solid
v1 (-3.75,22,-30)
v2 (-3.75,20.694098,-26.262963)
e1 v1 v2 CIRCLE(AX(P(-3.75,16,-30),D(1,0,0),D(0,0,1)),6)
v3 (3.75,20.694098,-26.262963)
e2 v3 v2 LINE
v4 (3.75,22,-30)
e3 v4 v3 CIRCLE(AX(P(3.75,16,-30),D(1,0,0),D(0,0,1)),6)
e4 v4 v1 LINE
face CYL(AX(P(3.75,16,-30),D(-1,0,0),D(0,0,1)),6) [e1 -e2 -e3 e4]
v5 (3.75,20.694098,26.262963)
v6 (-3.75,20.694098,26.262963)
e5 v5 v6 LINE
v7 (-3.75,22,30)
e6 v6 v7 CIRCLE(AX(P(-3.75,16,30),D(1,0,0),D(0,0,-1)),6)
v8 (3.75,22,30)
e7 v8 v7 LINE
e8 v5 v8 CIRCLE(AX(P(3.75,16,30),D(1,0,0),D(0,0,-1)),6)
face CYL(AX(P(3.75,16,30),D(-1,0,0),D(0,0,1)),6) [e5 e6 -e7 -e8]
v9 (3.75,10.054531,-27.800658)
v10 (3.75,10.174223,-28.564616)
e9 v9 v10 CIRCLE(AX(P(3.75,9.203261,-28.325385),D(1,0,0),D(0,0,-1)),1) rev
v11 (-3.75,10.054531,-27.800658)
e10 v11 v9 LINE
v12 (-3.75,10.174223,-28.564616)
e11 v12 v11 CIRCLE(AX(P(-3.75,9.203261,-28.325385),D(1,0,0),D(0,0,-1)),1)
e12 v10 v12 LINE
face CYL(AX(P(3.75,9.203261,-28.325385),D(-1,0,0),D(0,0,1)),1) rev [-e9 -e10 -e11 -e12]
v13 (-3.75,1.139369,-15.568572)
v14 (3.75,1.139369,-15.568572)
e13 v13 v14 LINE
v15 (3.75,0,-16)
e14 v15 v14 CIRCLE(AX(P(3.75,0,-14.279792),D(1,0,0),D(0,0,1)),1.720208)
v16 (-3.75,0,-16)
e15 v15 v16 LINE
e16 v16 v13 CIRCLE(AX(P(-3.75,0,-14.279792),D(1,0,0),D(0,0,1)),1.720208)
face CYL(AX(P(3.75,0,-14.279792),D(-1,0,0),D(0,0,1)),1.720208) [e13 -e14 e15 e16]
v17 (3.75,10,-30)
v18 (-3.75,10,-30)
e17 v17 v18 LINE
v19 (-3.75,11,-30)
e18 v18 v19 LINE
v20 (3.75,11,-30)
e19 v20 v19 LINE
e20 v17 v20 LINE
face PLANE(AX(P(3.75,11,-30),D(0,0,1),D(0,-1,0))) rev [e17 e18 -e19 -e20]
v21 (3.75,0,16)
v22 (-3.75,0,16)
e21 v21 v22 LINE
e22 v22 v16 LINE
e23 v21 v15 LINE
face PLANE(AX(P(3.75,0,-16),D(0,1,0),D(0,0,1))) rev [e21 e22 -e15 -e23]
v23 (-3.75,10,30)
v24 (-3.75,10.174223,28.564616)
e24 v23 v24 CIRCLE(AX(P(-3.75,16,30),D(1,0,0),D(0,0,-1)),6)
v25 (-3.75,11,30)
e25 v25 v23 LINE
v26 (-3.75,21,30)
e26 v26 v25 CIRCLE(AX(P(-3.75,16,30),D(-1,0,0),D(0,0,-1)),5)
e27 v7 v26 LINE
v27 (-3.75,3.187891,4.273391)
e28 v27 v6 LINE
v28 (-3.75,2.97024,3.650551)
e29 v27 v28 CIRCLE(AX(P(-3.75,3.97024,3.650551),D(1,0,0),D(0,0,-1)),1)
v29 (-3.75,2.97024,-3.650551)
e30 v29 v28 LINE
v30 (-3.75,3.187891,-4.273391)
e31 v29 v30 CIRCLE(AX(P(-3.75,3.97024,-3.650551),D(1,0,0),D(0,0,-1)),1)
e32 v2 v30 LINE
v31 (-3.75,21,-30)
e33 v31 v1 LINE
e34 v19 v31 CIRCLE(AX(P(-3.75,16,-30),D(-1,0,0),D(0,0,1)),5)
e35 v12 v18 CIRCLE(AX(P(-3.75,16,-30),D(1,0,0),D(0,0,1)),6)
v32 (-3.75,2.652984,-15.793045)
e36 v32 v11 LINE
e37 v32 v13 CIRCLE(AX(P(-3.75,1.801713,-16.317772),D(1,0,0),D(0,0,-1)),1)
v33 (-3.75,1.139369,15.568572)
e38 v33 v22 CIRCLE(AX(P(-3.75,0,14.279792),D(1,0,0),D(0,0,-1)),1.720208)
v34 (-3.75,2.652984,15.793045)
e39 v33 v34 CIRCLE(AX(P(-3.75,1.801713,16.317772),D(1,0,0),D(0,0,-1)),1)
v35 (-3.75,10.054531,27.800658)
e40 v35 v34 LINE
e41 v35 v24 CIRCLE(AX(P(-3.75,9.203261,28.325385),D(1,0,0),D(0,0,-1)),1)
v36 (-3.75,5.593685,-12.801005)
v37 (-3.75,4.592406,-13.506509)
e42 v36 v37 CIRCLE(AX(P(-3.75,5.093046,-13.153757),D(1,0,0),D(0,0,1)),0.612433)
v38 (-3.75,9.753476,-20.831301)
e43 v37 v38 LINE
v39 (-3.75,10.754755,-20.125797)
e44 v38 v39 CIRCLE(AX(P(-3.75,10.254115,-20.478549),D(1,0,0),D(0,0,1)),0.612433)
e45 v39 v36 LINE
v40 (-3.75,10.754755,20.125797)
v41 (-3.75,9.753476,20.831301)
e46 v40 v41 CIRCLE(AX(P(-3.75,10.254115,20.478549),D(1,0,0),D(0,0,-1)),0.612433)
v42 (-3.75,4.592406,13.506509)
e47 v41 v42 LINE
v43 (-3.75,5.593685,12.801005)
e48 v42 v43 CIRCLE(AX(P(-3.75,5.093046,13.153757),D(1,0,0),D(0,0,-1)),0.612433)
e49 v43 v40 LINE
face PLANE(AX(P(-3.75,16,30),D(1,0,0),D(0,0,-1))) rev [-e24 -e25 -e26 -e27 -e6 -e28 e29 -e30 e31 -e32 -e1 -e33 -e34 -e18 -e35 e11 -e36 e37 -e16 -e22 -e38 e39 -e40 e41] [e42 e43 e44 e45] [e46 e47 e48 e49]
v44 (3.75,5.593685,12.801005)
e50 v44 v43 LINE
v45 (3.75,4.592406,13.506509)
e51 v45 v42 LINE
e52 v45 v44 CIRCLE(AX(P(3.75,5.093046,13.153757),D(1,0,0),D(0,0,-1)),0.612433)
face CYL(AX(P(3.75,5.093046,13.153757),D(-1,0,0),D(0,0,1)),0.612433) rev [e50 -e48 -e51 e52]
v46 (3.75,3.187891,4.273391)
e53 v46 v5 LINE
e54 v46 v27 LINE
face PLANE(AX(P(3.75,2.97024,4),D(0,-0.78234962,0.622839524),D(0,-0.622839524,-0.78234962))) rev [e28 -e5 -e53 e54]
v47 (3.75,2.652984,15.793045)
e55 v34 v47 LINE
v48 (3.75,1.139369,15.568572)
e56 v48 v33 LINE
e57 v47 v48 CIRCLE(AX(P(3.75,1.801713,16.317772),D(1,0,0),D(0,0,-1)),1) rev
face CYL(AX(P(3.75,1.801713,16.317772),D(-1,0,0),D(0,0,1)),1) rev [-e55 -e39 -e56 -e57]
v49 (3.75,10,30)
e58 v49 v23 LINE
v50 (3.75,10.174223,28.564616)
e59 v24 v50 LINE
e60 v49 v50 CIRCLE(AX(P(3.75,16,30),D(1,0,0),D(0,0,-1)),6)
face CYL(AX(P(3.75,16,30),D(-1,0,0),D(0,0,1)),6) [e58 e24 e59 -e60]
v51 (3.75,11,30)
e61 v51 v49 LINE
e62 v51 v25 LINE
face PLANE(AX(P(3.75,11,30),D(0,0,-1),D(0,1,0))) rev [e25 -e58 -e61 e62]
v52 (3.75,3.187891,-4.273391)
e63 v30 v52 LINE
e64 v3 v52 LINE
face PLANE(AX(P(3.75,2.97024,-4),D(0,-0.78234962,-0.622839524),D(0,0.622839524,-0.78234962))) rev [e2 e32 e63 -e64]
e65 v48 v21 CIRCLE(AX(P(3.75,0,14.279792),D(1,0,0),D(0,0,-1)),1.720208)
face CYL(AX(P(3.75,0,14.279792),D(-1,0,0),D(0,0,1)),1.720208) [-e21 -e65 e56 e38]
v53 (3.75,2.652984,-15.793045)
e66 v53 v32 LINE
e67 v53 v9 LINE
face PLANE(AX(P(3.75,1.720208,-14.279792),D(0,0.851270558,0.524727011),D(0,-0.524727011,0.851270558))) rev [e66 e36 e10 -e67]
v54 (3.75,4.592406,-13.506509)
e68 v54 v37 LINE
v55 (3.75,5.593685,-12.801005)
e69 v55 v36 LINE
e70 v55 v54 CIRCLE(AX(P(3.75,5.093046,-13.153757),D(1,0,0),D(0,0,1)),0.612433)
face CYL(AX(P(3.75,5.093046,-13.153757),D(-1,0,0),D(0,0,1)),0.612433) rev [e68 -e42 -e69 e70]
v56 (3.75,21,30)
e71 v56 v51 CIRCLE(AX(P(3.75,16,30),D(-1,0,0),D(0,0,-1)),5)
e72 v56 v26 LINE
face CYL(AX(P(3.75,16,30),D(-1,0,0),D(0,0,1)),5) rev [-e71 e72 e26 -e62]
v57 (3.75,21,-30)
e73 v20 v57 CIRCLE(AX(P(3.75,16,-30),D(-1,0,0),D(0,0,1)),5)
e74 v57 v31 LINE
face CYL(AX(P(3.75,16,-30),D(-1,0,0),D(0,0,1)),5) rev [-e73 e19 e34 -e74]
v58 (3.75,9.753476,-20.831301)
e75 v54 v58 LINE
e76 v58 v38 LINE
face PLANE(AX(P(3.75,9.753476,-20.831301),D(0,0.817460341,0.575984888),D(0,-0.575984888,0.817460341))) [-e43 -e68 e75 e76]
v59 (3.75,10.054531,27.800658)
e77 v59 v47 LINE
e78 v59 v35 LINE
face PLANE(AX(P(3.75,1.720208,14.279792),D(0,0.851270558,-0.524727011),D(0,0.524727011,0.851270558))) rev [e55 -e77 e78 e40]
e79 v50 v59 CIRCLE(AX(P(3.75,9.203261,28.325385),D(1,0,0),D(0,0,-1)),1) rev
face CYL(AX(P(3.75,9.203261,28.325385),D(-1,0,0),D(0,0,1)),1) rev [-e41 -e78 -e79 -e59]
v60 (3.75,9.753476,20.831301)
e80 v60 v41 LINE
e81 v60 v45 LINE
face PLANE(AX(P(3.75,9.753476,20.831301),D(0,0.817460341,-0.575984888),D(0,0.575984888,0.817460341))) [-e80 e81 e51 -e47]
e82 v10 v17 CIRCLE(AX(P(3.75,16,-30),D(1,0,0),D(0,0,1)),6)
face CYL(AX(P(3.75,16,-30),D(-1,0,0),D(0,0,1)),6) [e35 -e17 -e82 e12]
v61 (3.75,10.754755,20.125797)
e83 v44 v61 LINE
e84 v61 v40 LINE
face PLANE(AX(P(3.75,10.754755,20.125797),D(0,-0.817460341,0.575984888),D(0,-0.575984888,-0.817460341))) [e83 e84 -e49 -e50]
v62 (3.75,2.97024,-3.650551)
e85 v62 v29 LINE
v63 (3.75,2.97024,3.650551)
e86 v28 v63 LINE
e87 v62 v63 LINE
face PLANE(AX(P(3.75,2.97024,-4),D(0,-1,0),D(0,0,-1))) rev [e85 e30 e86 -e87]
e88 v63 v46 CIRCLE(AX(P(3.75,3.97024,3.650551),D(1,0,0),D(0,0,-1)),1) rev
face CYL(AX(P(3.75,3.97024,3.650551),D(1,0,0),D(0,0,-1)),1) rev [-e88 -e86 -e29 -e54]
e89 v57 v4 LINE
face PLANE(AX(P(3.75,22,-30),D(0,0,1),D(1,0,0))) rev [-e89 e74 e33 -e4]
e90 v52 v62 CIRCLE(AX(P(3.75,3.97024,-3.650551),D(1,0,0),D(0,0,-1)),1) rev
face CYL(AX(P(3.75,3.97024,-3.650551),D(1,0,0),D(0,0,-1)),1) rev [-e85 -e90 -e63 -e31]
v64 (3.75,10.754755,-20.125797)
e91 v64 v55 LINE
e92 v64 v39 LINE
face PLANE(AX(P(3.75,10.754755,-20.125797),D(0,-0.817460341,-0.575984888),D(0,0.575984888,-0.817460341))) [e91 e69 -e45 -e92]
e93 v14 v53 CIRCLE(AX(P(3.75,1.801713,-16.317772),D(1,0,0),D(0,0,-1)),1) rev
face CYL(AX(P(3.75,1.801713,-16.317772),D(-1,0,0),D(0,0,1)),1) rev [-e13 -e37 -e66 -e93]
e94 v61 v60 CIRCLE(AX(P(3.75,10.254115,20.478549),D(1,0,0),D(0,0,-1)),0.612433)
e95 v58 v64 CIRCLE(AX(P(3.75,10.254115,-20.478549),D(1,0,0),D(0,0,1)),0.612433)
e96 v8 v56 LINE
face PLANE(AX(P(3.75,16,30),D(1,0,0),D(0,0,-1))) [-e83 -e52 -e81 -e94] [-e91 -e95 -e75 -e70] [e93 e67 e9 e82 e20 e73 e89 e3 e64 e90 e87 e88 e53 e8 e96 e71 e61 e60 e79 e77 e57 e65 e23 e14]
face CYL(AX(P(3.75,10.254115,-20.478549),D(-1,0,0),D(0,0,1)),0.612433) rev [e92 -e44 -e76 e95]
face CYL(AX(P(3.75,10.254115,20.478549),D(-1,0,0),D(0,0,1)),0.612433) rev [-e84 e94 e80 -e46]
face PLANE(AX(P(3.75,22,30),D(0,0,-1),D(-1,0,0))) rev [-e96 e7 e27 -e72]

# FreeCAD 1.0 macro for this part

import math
import FreeCAD as App
import Part
import Sketcher
Q = App.Units.Quantity


def edges_at(feature, points):
    """Names of the edges that pass closest to the given points."""
    edges = feature.Shape.Edges
    near = lambda p: min(range(len(edges)), key=lambda i: edges[i].distToShape(Part.Vertex(*p))[0])
    return sorted({f"Edge{near(p) + 1}" for p in points})

doc = App.newDocument("Part")
body = doc.addObject("PartDesign::Body", "Body")

# Sketch on YZ plane
sketch1 = body.newObject("Sketcher::SketchObject", "Sketch")
sketch1.AttachmentSupport = (doc.getObject("YZ_Plane"), [""])
sketch1.MapMode = "FlatFace"
sketch1.addGeometry([
    Part.LineSegment(App.Vector(22, 30, 0), App.Vector(21, 30, 0)),  # 0
    Part.ArcOfCircle(Part.Circle(App.Vector(16, 30, 0), App.Vector(0, 0, 1), 5), math.radians(180), math.radians(360)),  # 1
    Part.LineSegment(App.Vector(11, 30, 0), App.Vector(10, 30, 0)),  # 2
    Part.ArcOfCircle(Part.Circle(App.Vector(16, 30, 0), App.Vector(0, 0, 1), 6), math.radians(180), math.radians(197.72)),  # 3
    Part.LineSegment(App.Vector(10.3, 28.2, 0), App.Vector(1.7, 14.3, 0)),  # 4
    Part.ArcOfCircle(Part.Circle(App.Vector(0, 14.3, 0), App.Vector(0, 0, 1), 1.7), math.radians(0), math.radians(90)),  # 5
    Part.LineSegment(App.Vector(0, 16, 0), App.Vector(0, -16, 0)),  # 6
    Part.ArcOfCircle(Part.Circle(App.Vector(0, -14.3, 0), App.Vector(0, 0, 1), 1.7), math.radians(-90), math.radians(0)),  # 7
    Part.LineSegment(App.Vector(1.7, -14.3, 0), App.Vector(10.3, -28.2, 0)),  # 8
    Part.ArcOfCircle(Part.Circle(App.Vector(16, -30, 0), App.Vector(0, 0, 1), 6), math.radians(162.28), math.radians(180)),  # 9
    Part.LineSegment(App.Vector(10, -30, 0), App.Vector(11, -30, 0)),  # 10
    Part.ArcOfCircle(Part.Circle(App.Vector(16, -30, 0), App.Vector(0, 0, 1), 5), math.radians(0), math.radians(180)),  # 11
    Part.LineSegment(App.Vector(21, -30, 0), App.Vector(22, -30, 0)),  # 12
    Part.ArcOfCircle(Part.Circle(App.Vector(16, -30, 0), App.Vector(0, 0, 1), 6), math.radians(0), math.radians(39)),  # 13
    Part.LineSegment(App.Vector(20.7, -26.3, 0), App.Vector(3, -4, 0)),  # 14
    Part.LineSegment(App.Vector(3, -4, 0), App.Vector(3, 4, 0)),  # 15
    Part.LineSegment(App.Vector(3, 4, 0), App.Vector(20.7, 26.3, 0)),  # 16
    Part.ArcOfCircle(Part.Circle(App.Vector(16, 30, 0), App.Vector(0, 0, 1), 6), math.radians(-39), math.radians(0)),  # 17
    Part.ArcOfCircle(Part.Circle(App.Vector(10.3, 20.5, 0), App.Vector(0, 0, 1), 0.6), math.radians(-35), math.radians(145)),  # 18
    Part.LineSegment(App.Vector(10.8, 20.1, 0), App.Vector(5.6, 12.8, 0)),  # 19
    Part.ArcOfCircle(Part.Circle(App.Vector(5.1, 13.2, 0), App.Vector(0, 0, 1), 0.6), math.radians(145), math.radians(325)),  # 20
    Part.LineSegment(App.Vector(4.6, 13.5, 0), App.Vector(9.8, 20.8, 0)),  # 21
    Part.LineSegment(App.Vector(5.6, -12.8, 0), App.Vector(10.8, -20.1, 0)),  # 22
    Part.ArcOfCircle(Part.Circle(App.Vector(10.3, -20.5, 0), App.Vector(0, 0, 1), 0.6), math.radians(-145), math.radians(35)),  # 23
    Part.LineSegment(App.Vector(9.8, -20.8, 0), App.Vector(4.6, -13.5, 0)),  # 24
    Part.ArcOfCircle(Part.Circle(App.Vector(5.1, -13.2, 0), App.Vector(0, 0, 1), 0.6), math.radians(35), math.radians(215)),  # 25
], False)
sketch1.addConstraint([
    Sketcher.Constraint("Coincident", 0, 2, 1, 2),
    Sketcher.Constraint("Coincident", 1, 1, 2, 1),
    Sketcher.Constraint("Coincident", 2, 2, 3, 1),
    Sketcher.Constraint("Coincident", 3, 2, 4, 1),
    Sketcher.Constraint("Coincident", 4, 2, 5, 1),
    Sketcher.Constraint("Coincident", 5, 2, 6, 1),
    Sketcher.Constraint("Coincident", 6, 2, 7, 1),
    Sketcher.Constraint("Coincident", 7, 2, 8, 1),
    Sketcher.Constraint("Coincident", 8, 2, 9, 1),
    Sketcher.Constraint("Coincident", 9, 2, 10, 1),
    Sketcher.Constraint("Coincident", 10, 2, 11, 2),
    Sketcher.Constraint("Coincident", 11, 1, 12, 1),
    Sketcher.Constraint("Coincident", 12, 2, 13, 1),
    Sketcher.Constraint("Tangent", 13, 2, 14, 1),
    Sketcher.Constraint("Coincident", 14, 2, 15, 1),
    Sketcher.Constraint("Coincident", 15, 2, 16, 1),
    Sketcher.Constraint("Tangent", 16, 2, 17, 1),
    Sketcher.Constraint("Coincident", 17, 2, 0, 1),
    Sketcher.Constraint("Tangent", 18, 1, 19, 1),
    Sketcher.Constraint("Tangent", 19, 2, 20, 2),
    Sketcher.Constraint("Tangent", 20, 1, 21, 1),
    Sketcher.Constraint("Tangent", 21, 2, 18, 2),
    Sketcher.Constraint("Tangent", 22, 2, 23, 2),
    Sketcher.Constraint("Tangent", 23, 1, 24, 1),
    Sketcher.Constraint("Tangent", 24, 2, 25, 2),
    Sketcher.Constraint("Tangent", 25, 1, 22, 1),
    Sketcher.Constraint("Horizontal", 0),
    Sketcher.Constraint("Horizontal", 2),
    Sketcher.Constraint("Vertical", 6),
    Sketcher.Constraint("Horizontal", 10),
    Sketcher.Constraint("Horizontal", 12),
    Sketcher.Constraint("Vertical", 15),
    Sketcher.Constraint("Coincident", 3, 3, 1, 3),
    Sketcher.Constraint("Coincident", 11, 3, 9, 3),
    Sketcher.Constraint("Coincident", 13, 3, 9, 3),
    Sketcher.Constraint("Coincident", 17, 3, 1, 3),
    Sketcher.Constraint("Equal", 5, 7),
    Sketcher.Constraint("Equal", 3, 9),
    Sketcher.Constraint("Equal", 1, 11),
    Sketcher.Constraint("Equal", 9, 13),
    Sketcher.Constraint("Equal", 13, 17),
    Sketcher.Constraint("Equal", 18, 20),
    Sketcher.Constraint("Equal", 20, 23),
    Sketcher.Constraint("Equal", 23, 25),
    Sketcher.Constraint("Symmetric", 5, 3, 7, 3, -1, 1),
    Sketcher.Constraint("Symmetric", 1, 3, 9, 3, -1),
    Sketcher.Constraint("Symmetric", 18, 3, 23, 3, -1),
    Sketcher.Constraint("Symmetric", 20, 3, 25, 3, -1),
    Sketcher.Constraint("Symmetric", 4, 2, 7, 2, -1),
    Sketcher.Constraint("PointOnObject", 5, 2, -2),
    Sketcher.Constraint("Horizontal", 17, 3, 0, 2),
    Sketcher.Constraint("Horizontal", 0, 2, 1, 1),
    Sketcher.Constraint("Horizontal", 5, 3, 4, 2),
    Sketcher.Constraint("Horizontal", 13, 3, 9, 2),
    Sketcher.Constraint("Horizontal", 10, 2, 11, 1),
    Sketcher.Constraint("Vertical", 3, 2, 8, 2),
    Sketcher.Constraint("Vertical", 13, 2, 16, 2),
    Sketcher.Constraint("Radius", 1, Q("5 mm")),
    Sketcher.Constraint("Radius", 3, Q("6 mm")),
    Sketcher.Constraint("DistanceY", 6, 2, 6, 1, Q("32 mm")),
    Sketcher.Constraint("DistanceY", 15, 1, 15, 2, Q("8 mm")),
    Sketcher.Constraint("DistanceX", -1, 1, 1, 3, Q("16 mm")),
    Sketcher.Constraint("DistanceY", -1, 1, 1, 3, Q("30 mm")),
    Sketcher.Constraint("Radius", 5, Q("1.720208 mm")),
    Sketcher.Constraint("Radius", 18, Q("0.612433 mm")),
    Sketcher.Constraint("DistanceY", -1, 1, 21, 2, Q("20.831301 mm")),
    Sketcher.Constraint("DistanceX", 4, 2, 20, 1, Q("2.872198 mm")),
    Sketcher.Constraint("Distance", 4, Q("16.321662 mm")),
    Sketcher.Constraint("Distance", 14, Q("28.456539 mm")),
    Sketcher.Constraint("DistanceY", -1, 1, 18, 3, Q("20.478549 mm")),
    Sketcher.Constraint("DistanceY", -1, 1, 20, 1, Q("13.506509 mm")),
])
pad1 = body.newObject("PartDesign::Pad", "Pad")
pad1.Profile = sketch1
pad1.Length = 7.5
pad1.Midplane = True
doc.recompute()

fillet = body.newObject("PartDesign::Fillet", "Fillet")
fillet.Base = (pad1, edges_at(pad1, [
    (0, 2.97, 4),
    (0, 2.97, -4),
    (0, 10.285, -28.174),
    (0, 1.72, -14.28),
    (0, 1.72, 14.28),
    (0, 10.285, 28.174),
]))
fillet.Radius = 1

doc.recompute()
